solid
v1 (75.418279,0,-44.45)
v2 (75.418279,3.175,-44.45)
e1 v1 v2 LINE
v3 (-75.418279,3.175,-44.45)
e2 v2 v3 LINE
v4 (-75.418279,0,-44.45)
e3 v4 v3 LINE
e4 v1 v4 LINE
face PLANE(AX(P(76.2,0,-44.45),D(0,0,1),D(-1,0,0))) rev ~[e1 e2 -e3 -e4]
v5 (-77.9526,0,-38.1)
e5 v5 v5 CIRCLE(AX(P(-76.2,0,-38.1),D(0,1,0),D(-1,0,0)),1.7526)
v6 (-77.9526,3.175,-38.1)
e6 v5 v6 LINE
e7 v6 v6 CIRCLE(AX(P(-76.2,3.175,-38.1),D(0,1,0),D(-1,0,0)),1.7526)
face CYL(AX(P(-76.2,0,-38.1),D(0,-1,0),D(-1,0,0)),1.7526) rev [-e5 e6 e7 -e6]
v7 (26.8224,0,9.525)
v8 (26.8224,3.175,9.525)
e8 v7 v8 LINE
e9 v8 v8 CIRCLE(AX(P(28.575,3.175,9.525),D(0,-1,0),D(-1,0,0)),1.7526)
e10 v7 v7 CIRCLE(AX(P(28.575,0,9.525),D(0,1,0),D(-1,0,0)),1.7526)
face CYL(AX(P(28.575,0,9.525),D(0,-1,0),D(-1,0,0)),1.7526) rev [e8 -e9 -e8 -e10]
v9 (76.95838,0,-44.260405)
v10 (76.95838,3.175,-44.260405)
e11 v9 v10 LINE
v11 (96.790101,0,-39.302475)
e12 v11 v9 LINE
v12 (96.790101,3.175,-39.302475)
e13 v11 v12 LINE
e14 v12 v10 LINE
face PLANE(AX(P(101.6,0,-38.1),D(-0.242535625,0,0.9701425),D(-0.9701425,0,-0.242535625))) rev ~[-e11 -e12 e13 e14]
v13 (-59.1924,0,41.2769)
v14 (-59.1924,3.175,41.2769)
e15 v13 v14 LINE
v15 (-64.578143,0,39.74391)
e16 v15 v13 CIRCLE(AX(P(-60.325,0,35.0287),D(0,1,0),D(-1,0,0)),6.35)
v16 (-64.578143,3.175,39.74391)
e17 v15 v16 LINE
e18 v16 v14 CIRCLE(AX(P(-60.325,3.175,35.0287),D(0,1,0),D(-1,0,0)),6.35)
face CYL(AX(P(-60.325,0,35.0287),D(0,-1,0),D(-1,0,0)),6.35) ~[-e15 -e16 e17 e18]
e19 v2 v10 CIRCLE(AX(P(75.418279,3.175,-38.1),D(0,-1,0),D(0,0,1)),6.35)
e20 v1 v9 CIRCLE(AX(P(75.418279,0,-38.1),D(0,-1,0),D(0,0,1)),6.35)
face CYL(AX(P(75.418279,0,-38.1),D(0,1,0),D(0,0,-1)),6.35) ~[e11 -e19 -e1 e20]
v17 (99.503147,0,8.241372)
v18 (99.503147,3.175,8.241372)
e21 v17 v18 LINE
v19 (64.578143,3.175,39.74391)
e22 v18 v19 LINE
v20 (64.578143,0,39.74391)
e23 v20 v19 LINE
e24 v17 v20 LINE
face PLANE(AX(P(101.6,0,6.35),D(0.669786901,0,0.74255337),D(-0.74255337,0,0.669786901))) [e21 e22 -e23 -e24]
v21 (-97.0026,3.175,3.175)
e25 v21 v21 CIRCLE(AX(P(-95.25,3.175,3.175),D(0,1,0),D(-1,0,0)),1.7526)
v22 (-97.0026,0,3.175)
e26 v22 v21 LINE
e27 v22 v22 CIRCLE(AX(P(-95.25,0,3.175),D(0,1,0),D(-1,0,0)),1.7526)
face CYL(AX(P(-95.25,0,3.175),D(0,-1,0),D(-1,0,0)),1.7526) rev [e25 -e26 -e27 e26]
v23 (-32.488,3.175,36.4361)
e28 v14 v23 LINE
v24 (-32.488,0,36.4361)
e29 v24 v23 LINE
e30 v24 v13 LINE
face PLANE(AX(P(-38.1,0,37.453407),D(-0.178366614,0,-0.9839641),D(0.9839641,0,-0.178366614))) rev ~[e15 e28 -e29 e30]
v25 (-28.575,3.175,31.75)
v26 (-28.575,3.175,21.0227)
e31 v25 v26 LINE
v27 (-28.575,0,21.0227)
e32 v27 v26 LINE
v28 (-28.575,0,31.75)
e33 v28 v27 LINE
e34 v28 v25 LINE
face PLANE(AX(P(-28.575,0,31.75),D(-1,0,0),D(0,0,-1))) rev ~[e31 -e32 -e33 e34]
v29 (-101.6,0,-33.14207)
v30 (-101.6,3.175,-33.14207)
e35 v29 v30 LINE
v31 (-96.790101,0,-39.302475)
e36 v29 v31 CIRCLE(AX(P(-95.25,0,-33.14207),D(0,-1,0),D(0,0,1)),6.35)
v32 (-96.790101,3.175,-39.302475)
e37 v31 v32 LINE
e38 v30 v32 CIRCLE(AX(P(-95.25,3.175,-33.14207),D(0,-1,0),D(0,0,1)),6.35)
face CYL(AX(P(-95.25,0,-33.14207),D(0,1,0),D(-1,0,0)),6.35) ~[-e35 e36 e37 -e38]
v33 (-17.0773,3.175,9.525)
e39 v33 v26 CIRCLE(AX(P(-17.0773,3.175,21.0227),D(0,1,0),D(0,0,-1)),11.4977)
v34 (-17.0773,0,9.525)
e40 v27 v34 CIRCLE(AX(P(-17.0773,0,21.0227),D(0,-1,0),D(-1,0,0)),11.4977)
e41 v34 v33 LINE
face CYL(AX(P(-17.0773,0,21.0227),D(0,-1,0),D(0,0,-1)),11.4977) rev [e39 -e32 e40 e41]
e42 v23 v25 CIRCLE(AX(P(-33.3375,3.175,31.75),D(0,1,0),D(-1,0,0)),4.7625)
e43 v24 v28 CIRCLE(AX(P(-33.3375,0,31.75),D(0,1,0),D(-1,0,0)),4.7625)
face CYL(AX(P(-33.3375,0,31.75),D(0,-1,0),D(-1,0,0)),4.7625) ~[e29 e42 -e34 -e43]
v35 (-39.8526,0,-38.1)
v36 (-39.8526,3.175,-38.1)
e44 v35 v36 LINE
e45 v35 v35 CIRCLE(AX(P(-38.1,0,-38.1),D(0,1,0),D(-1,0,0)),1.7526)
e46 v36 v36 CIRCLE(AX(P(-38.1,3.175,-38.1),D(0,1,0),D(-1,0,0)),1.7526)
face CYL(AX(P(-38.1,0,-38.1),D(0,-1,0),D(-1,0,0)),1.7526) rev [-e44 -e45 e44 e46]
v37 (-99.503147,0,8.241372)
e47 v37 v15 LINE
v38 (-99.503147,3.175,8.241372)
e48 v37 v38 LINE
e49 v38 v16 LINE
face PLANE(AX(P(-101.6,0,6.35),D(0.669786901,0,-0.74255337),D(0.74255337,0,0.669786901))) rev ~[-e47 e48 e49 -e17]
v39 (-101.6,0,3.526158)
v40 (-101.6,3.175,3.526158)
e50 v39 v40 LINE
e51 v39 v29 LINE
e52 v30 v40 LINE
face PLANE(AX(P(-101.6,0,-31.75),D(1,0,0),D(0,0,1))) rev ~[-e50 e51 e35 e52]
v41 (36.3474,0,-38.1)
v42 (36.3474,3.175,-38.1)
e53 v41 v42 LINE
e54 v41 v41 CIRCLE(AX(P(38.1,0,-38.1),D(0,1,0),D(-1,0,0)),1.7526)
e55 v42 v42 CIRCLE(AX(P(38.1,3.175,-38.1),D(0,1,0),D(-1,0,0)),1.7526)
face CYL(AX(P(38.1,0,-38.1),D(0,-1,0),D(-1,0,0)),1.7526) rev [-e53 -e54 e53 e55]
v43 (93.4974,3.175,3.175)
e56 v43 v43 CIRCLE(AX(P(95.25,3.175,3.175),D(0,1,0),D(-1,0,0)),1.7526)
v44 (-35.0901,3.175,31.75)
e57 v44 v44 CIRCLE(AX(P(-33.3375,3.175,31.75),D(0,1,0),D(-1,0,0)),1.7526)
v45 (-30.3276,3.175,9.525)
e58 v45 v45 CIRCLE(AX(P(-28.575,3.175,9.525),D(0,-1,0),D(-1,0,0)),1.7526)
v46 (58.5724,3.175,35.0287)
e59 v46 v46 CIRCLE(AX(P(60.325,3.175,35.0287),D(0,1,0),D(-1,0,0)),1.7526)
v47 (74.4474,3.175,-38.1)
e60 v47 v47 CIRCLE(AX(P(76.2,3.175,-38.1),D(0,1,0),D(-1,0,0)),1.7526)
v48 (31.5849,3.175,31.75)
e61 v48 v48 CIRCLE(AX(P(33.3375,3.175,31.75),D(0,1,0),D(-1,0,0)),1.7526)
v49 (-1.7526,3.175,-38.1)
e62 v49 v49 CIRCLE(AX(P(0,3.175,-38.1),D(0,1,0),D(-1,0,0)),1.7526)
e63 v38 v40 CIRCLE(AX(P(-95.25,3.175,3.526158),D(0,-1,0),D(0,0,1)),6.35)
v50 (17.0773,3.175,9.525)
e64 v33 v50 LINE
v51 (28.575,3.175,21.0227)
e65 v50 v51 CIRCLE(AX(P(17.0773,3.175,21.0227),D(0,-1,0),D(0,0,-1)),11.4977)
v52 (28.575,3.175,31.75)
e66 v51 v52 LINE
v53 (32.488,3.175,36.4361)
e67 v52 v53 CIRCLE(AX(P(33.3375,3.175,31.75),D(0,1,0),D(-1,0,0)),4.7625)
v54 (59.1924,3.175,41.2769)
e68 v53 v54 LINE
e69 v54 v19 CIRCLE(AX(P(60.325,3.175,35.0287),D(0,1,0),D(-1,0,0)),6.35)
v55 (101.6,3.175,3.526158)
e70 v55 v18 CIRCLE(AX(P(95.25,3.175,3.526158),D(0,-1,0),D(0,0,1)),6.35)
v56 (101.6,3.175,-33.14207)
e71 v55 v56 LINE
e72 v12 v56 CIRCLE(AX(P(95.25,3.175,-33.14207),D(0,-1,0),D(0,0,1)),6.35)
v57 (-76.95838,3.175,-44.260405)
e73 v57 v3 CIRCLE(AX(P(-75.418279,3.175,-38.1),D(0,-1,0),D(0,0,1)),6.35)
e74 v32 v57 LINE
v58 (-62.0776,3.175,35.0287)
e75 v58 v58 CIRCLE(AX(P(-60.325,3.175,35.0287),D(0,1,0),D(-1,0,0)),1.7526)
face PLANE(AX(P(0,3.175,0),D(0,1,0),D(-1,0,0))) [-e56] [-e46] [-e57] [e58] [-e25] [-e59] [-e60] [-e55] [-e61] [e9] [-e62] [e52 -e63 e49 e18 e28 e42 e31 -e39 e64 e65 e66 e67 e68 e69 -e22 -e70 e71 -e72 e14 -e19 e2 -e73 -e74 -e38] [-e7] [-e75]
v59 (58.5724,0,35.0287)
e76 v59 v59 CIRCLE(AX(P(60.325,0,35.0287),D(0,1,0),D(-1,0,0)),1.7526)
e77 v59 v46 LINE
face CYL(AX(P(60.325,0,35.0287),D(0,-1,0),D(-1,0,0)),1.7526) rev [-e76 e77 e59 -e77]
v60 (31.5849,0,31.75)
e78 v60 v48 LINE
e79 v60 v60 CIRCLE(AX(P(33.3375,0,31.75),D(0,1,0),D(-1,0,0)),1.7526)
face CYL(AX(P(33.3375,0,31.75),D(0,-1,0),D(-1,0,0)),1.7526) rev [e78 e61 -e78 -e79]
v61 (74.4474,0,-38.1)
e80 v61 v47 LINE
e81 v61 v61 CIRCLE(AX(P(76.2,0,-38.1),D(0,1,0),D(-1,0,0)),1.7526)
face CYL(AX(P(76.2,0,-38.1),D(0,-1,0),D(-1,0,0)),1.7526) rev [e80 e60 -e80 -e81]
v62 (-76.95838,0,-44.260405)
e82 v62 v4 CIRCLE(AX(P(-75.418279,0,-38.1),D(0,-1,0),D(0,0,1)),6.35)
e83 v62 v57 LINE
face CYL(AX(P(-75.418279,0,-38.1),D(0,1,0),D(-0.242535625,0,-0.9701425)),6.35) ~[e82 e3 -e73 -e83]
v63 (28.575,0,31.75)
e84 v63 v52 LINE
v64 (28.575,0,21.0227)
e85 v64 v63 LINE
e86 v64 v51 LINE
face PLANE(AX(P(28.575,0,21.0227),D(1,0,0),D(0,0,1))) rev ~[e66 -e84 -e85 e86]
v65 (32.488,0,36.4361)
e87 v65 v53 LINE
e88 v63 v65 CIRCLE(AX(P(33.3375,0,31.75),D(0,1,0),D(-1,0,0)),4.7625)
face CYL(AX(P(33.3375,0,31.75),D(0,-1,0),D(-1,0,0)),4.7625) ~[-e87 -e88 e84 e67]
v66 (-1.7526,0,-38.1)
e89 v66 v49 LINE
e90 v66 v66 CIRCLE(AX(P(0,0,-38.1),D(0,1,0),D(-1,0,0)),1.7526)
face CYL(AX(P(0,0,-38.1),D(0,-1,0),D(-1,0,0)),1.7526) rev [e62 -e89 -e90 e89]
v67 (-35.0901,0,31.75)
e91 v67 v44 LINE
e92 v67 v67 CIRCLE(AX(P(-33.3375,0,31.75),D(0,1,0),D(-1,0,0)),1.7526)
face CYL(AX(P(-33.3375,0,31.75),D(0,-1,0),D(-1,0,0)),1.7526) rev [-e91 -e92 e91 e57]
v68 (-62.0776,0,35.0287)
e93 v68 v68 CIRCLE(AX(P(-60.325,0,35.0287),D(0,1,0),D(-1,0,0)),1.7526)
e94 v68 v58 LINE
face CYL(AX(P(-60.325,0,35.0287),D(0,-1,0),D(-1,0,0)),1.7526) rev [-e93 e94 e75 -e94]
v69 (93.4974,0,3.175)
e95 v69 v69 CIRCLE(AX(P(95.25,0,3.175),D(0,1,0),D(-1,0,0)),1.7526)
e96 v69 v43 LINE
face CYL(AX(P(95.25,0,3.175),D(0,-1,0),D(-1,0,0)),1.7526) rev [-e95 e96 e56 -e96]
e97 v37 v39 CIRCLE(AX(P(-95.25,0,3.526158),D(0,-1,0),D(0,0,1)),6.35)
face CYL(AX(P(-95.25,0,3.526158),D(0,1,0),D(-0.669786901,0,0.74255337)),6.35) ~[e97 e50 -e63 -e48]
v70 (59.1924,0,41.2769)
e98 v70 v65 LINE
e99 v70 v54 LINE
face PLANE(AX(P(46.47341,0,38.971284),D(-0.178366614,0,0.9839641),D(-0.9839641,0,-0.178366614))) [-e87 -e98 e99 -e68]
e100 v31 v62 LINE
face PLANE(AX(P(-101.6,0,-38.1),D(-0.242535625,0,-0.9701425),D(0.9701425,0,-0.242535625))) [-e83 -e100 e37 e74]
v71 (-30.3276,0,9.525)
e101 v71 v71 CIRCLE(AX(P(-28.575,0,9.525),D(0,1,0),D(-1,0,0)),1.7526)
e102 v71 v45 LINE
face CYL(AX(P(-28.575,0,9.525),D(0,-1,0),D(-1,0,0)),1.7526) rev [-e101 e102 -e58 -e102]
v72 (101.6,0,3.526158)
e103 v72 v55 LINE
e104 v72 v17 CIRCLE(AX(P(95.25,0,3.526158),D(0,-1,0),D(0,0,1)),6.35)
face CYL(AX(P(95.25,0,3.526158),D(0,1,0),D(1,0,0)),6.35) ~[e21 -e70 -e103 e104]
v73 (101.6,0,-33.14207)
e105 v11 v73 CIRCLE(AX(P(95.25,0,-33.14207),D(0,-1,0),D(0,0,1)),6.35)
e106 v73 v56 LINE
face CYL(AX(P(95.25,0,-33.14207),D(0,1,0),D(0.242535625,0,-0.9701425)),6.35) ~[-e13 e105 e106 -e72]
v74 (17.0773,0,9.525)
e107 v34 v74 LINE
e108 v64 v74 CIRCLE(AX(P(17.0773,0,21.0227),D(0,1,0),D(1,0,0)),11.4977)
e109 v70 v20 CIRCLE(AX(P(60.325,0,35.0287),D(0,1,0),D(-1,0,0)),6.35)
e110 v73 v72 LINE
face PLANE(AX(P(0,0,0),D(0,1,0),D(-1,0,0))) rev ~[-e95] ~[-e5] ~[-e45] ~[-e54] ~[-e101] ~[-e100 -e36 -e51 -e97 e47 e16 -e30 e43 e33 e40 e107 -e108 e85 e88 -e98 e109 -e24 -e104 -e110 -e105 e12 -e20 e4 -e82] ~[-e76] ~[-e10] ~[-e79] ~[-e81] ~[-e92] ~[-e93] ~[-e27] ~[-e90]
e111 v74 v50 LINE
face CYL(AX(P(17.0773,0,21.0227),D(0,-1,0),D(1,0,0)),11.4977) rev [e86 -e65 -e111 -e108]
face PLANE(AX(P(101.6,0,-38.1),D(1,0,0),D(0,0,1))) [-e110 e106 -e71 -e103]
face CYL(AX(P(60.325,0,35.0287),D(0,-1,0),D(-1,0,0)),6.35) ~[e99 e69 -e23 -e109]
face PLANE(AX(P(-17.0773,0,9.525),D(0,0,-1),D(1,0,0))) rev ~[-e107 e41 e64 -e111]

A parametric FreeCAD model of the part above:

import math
import FreeCAD as App
import Part
import Sketcher
Q = App.Units.Quantity


def edges_at(feature, points):
    """Names of the edges that pass closest to the given points."""
    edges = feature.Shape.Edges
    near = lambda p: min(range(len(edges)), key=lambda i: edges[i].distToShape(Part.Vertex(*p))[0])
    return sorted({f"Edge{near(p) + 1}" for p in points})

doc = App.newDocument("Part")
body = doc.addObject("PartDesign::Body", "Body")

sketch1 = body.newObject("Sketcher::SketchObject", "Sketch")
sketch1.AttachmentSupport = (doc.getObject("XZ_Plane"), [""])
sketch1.MapMode = "FlatFace"
sketch1.addGeometry([
    Part.LineSegment(App.Vector(-28.6, 31.8, 0), App.Vector(-28.6, 21, 0)),
    Part.ArcOfCircle(Part.Circle(App.Vector(-17.1, 21, 0), App.Vector(0, 0, 1), 11.5), math.radians(180), math.radians(270)),
    Part.LineSegment(App.Vector(-17.1, 9.5, 0), App.Vector(17.1, 9.5, 0)),
    Part.ArcOfCircle(Part.Circle(App.Vector(17.1, 21, 0), App.Vector(0, 0, 1), 11.5), math.radians(-90), math.radians(0)),
    Part.LineSegment(App.Vector(28.6, 21, 0), App.Vector(28.6, 31.8, 0)),
    Part.ArcOfCircle(Part.Circle(App.Vector(33.3, 31.8, 0), App.Vector(0, 0, 1), 4.8), math.radians(100), math.radians(180)),
    Part.LineSegment(App.Vector(32.5, 36.4, 0), App.Vector(59.2, 41.3, 0)),
    Part.ArcOfCircle(Part.Circle(App.Vector(60.3, 35, 0), App.Vector(0, 0, 1), 6.3), math.radians(48), math.radians(100)),
    Part.LineSegment(App.Vector(64.6, 39.7, 0), App.Vector(101.6, 6.3, 0)),
    Part.LineSegment(App.Vector(101.6, 6.3, 0), App.Vector(101.6, -38.1, 0)),
    Part.LineSegment(App.Vector(101.6, -38.1, 0), App.Vector(76.2, -44.5, 0)),
    Part.LineSegment(App.Vector(76.2, -44.5, 0), App.Vector(-76.2, -44.5, 0)),
    Part.LineSegment(App.Vector(-76.2, -44.5, 0), App.Vector(-101.6, -38.1, 0)),
    Part.LineSegment(App.Vector(-101.6, -38.1, 0), App.Vector(-101.6, 6.3, 0)),
    Part.LineSegment(App.Vector(-101.6, 6.3, 0), App.Vector(-64.6, 39.7, 0)),
    Part.ArcOfCircle(Part.Circle(App.Vector(-60.3, 35, 0), App.Vector(0, 0, 1), 6.3), math.radians(80), math.radians(132)),
    Part.LineSegment(App.Vector(-59.2, 41.3, 0), App.Vector(-32.5, 36.4, 0)),
    Part.ArcOfCircle(Part.Circle(App.Vector(-33.3, 31.8, 0), App.Vector(0, 0, 1), 4.8), math.radians(0), math.radians(80)),
    Part.Circle(App.Vector(-33.3, 31.8, 0), App.Vector(0, 0, 1), 1.8),
    Part.Circle(App.Vector(-28.6, 9.5, 0), App.Vector(0, 0, 1), 1.8),
    Part.Circle(App.Vector(-95.2, 3.2, 0), App.Vector(0, 0, 1), 1.8),
    Part.Circle(App.Vector(-76.2, -38.1, 0), App.Vector(0, 0, 1), 1.8),
    Part.Circle(App.Vector(0, -38.1, 0), App.Vector(0, 0, 1), 1.8),
    Part.Circle(App.Vector(-38.1, -38.1, 0), App.Vector(0, 0, 1), 1.8),
    Part.Circle(App.Vector(76.2, -38.1, 0), App.Vector(0, 0, 1), 1.8),
    Part.Circle(App.Vector(38.1, -38.1, 0), App.Vector(0, 0, 1), 1.8),
    Part.Circle(App.Vector(95.2, 3.2, 0), App.Vector(0, 0, 1), 1.8),
    Part.Circle(App.Vector(28.6, 9.5, 0), App.Vector(0, 0, 1), 1.8),
    Part.Circle(App.Vector(-60.3, 35, 0), App.Vector(0, 0, 1), 1.8),
    Part.Circle(App.Vector(60.3, 35, 0), App.Vector(0, 0, 1), 1.8),
    Part.Circle(App.Vector(33.3, 31.8, 0), App.Vector(0, 0, 1), 1.8),
], False)
sketch1.addConstraint([
    Sketcher.Constraint("Tangent", 0, 2, 1, 1),
    Sketcher.Constraint("Tangent", 1, 2, 2, 1),
    Sketcher.Constraint("Tangent", 2, 2, 3, 1),
    Sketcher.Constraint("Tangent", 3, 2, 4, 1),
    Sketcher.Constraint("Tangent", 4, 2, 5, 2),
    Sketcher.Constraint("Tangent", 5, 1, 6, 1),
    Sketcher.Constraint("Tangent", 6, 2, 7, 2),
    Sketcher.Constraint("Tangent", 7, 1, 8, 1),
    Sketcher.Constraint("Coincident", 8, 2, 9, 1),
    Sketcher.Constraint("Coincident", 9, 2, 10, 1),
    Sketcher.Constraint("Coincident", 10, 2, 11, 1),
    Sketcher.Constraint("Coincident", 11, 2, 12, 1),
    Sketcher.Constraint("Coincident", 12, 2, 13, 1),
    Sketcher.Constraint("Coincident", 13, 2, 14, 1),
    Sketcher.Constraint("Tangent", 14, 2, 15, 2),
    Sketcher.Constraint("Tangent", 15, 1, 16, 1),
    Sketcher.Constraint("Tangent", 16, 2, 17, 2),
    Sketcher.Constraint("Tangent", 17, 1, 0, 1),
    Sketcher.Constraint("Vertical", 0),
    Sketcher.Constraint("Horizontal", 2),
    Sketcher.Constraint("Vertical", 4),
    Sketcher.Constraint("Vertical", 9),
    Sketcher.Constraint("Horizontal", 11),
    Sketcher.Constraint("Vertical", 13),
    Sketcher.Constraint("Coincident", 18, 3, 17, 3),
    Sketcher.Constraint("Coincident", 28, 3, 15, 3),
    Sketcher.Constraint("Coincident", 29, 3, 7, 3),
    Sketcher.Constraint("Coincident", 30, 3, 5, 3),
    Sketcher.Constraint("Equal", 1, 3),
    Sketcher.Constraint("Equal", 7, 15),
    Sketcher.Constraint("Equal", 5, 17),
    Sketcher.Constraint("Equal", 18, 19),
    Sketcher.Constraint("Equal", 19, 20),
    Sketcher.Constraint("Equal", 20, 21),
    Sketcher.Constraint("Equal", 21, 22),
    Sketcher.Constraint("Equal", 22, 23),
    Sketcher.Constraint("Equal", 23, 24),
    Sketcher.Constraint("Equal", 24, 25),
    Sketcher.Constraint("Equal", 25, 26),
    Sketcher.Constraint("Equal", 26, 27),
    Sketcher.Constraint("Equal", 27, 28),
    Sketcher.Constraint("Equal", 28, 29),
    Sketcher.Constraint("Equal", 29, 30),
    Sketcher.Constraint("Symmetric", 7, 3, 15, 3, -2),
    Sketcher.Constraint("Symmetric", 5, 3, 17, 3, -2),
    Sketcher.Constraint("Symmetric", 21, 3, 24, 3, -2),
    Sketcher.Constraint("Symmetric", 23, 3, 25, 3, -2),
    Sketcher.Constraint("Symmetric", 20, 3, 26, 3, -2),
    Sketcher.Constraint("Symmetric", 19, 3, 27, 3, -2),
    Sketcher.Constraint("Symmetric", 9, 2, 12, 2, -2),
    Sketcher.Constraint("PointOnObject", 22, 3, -2),
    Sketcher.Constraint("Horizontal", 21, 3, 22, 3),
    Sketcher.Constraint("Horizontal", 22, 3, 23, 3),
    Sketcher.Constraint("Horizontal", 27, 3, 1, 2),
    Sketcher.Constraint("Horizontal", 25, 3, 9, 2),
    Sketcher.Constraint("Horizontal", 8, 2, 13, 2),
    Sketcher.Constraint("Vertical", 19, 3, 0, 2),
    Sketcher.Constraint("Vertical", 24, 3, 10, 2),
    Sketcher.Constraint("Vertical", 21, 3, 11, 2),
    Sketcher.Constraint("Radius", 7, Q("0.25 in")),
    Sketcher.Constraint("Diameter", 18, Q("0.138 in")),
    Sketcher.Constraint("DistanceX", 21, 3, -1, 1, Q("3 in")),
    Sketcher.Constraint("Radius", 5, Q("0.1875 in")),
    Sketcher.Constraint("DistanceX", 23, 3, 25, 3, Q("3 in")),
    Sketcher.Constraint("DistanceX", 24, 3, 8, 2, Q("1 in")),
    Sketcher.Constraint("DistanceY", 10, 2, 8, 2, Q("2 in")),
    Sketcher.Constraint("DistanceY", 9, 2, 9, 1, Q("1.75 in")),
    Sketcher.Constraint("DistanceY", 21, 3, -1, 1, Q("1.5 in")),
    Sketcher.Constraint("DistanceY", -1, 1, 5, 3, Q("1.25 in")),
    Sketcher.Constraint("DistanceX", 15, 3, 19, 3, Q("1.25 in")),
    Sketcher.Constraint("DistanceY", 20, 3, 19, 3, Q("0.25 in")),
    Sketcher.Constraint("DistanceX", 20, 3, 21, 3, Q("0.75 in")),
    Sketcher.Constraint("DistanceX", 19, 3, -1, 1, Q("1.125 in")),
    Sketcher.Constraint("DistanceY", -1, 1, 19, 3, Q("0.375 in")),
    Sketcher.Constraint("Angle", 8, Q("-42.0506 deg")),
    Sketcher.Constraint("Radius", 1, Q("11.4977 mm")),
])
pad1 = body.newObject("PartDesign::Pad", "Pad")
pad1.Profile = sketch1
pad1.Length = Q("0.125 in")
pad1.Reversed = True
doc.recompute()

fillet = body.newObject("PartDesign::Fillet", "Fillet")
fillet.Base = (pad1, edges_at(pad1, [
    (101.6, 1.587, -38.1),
    (101.6, 1.587, 6.35),
    (-101.6, 1.587, 6.35),
    (76.2, 1.587, -44.45),
    (-76.2, 1.587, -44.45),
    (-101.6, 1.587, -38.1),
]))
fillet.Radius = Q("0.25 in")

doc.recompute()
